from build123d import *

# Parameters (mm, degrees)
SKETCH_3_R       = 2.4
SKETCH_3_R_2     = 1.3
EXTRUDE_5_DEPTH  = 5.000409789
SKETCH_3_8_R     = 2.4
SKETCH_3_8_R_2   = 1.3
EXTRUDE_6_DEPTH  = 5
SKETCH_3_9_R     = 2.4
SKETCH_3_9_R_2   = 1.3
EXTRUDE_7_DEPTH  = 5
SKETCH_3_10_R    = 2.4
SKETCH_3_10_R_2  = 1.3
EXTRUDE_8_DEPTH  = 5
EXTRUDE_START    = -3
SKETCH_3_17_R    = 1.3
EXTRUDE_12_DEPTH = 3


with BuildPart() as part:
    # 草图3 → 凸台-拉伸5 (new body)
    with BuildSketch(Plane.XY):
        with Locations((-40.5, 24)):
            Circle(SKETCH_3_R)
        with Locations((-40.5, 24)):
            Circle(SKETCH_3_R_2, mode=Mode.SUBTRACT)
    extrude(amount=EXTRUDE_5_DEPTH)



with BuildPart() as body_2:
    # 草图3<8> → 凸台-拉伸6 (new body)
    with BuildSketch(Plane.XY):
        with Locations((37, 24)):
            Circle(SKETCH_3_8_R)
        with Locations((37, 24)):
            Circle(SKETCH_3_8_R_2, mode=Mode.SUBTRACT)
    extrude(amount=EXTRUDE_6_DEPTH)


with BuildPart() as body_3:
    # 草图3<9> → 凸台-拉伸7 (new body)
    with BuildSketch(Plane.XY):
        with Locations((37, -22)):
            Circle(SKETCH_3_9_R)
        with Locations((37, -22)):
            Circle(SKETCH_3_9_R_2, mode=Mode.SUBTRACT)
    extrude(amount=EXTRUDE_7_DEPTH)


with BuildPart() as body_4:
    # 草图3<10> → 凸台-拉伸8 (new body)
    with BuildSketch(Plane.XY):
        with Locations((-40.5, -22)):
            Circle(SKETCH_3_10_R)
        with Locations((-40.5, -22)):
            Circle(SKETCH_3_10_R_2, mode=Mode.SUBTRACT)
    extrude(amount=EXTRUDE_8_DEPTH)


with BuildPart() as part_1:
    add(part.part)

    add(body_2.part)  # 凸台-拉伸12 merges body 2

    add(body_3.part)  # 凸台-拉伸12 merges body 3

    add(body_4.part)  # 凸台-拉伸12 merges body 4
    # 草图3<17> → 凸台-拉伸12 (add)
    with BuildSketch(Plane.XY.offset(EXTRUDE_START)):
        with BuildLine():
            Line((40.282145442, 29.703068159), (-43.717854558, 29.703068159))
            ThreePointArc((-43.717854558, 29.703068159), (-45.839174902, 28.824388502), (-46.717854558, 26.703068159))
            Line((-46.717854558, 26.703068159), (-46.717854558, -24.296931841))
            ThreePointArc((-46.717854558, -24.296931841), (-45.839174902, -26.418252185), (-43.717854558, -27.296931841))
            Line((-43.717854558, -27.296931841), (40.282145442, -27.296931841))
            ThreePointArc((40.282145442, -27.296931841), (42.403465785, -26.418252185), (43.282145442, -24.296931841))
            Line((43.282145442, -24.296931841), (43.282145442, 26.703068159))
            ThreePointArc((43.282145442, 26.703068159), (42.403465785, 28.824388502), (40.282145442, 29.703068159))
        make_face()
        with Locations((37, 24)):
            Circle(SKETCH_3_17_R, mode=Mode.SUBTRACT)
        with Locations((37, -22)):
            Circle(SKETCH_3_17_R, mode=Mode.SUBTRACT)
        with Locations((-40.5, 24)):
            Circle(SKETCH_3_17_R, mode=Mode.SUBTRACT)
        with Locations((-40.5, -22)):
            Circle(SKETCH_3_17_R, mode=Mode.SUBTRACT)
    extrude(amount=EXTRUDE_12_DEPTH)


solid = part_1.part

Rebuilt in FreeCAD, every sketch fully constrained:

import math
import FreeCAD as App
import Part
import Sketcher

V = App.Vector

doc = App.newDocument("Part")
body = doc.addObject("PartDesign::Body", "Body")

sketch1 = doc.addObject("Sketcher::SketchObject", "Sketch")
body.addObject(sketch1)
sketch1.AttachmentSupport = (doc.XY_Plane, [""])
sketch1.MapMode = "FlatFace"
sketch1.addGeometry(Part.Circle(V(-40.5, 24, 0), V(0, 0, 1), 2.4), False)
sketch1.addGeometry(Part.Circle(V(-40.5, 24, 0), V(0, 0, 1), 1.3), False)
sketch1.addConstraint(Sketcher.Constraint("Coincident", 1, 3, 0, 3))
sketch1.addConstraint(Sketcher.Constraint("Diameter", 0, 4.8))
sketch1.addConstraint(Sketcher.Constraint("Diameter", 1, 2.6))
sketch1.addConstraint(Sketcher.Constraint("DistanceY", -1, 1, 0, 3, 24.0))
sketch1.addConstraint(Sketcher.Constraint("DistanceX", 0, 3, -1, 1, 40.5))
pad1 = doc.addObject("PartDesign::Pad", "Pad")
body.addObject(pad1)
pad1.Profile = sketch1
pad1.Length = 5.00041
body2 = doc.addObject("PartDesign::Body", "Body001")

sketch2 = doc.addObject("Sketcher::SketchObject", "Sketch001")
body2.addObject(sketch2)
sketch2.AttachmentSupport = (doc.getObject("XY_Plane001"), [""])
sketch2.MapMode = "FlatFace"
sketch2.addGeometry(Part.Circle(V(37, 24, 0), V(0, 0, 1), 2.4), False)
sketch2.addGeometry(Part.Circle(V(37, 24, 0), V(0, 0, 1), 1.3), False)
sketch2.addConstraint(Sketcher.Constraint("Coincident", 1, 3, 0, 3))
sketch2.addConstraint(Sketcher.Constraint("Diameter", 0, 4.8))
sketch2.addConstraint(Sketcher.Constraint("Diameter", 1, 2.6))
sketch2.addConstraint(Sketcher.Constraint("DistanceX", -1, 1, 0, 3, 37.0))
sketch2.addConstraint(Sketcher.Constraint("DistanceY", -1, 1, 0, 3, 24.0))
pad2 = doc.addObject("PartDesign::Pad", "Pad001")
body2.addObject(pad2)
pad2.Profile = sketch2
pad2.Length = 5
body3 = doc.addObject("PartDesign::Body", "Body002")

sketch3 = doc.addObject("Sketcher::SketchObject", "Sketch002")
body3.addObject(sketch3)
sketch3.AttachmentSupport = (doc.getObject("XY_Plane002"), [""])
sketch3.MapMode = "FlatFace"
sketch3.addGeometry(Part.Circle(V(37, -22, 0), V(0, 0, 1), 2.4), False)
sketch3.addGeometry(Part.Circle(V(37, -22, 0), V(0, 0, 1), 1.3), False)
sketch3.addConstraint(Sketcher.Constraint("Coincident", 1, 3, 0, 3))
sketch3.addConstraint(Sketcher.Constraint("Diameter", 0, 4.8))
sketch3.addConstraint(Sketcher.Constraint("Diameter", 1, 2.6))
sketch3.addConstraint(Sketcher.Constraint("DistanceX", -1, 1, 0, 3, 37.0))
sketch3.addConstraint(Sketcher.Constraint("DistanceY", 0, 3, -1, 1, 22.0))
pad3 = doc.addObject("PartDesign::Pad", "Pad002")
body3.addObject(pad3)
pad3.Profile = sketch3
pad3.Length = 5
body4 = doc.addObject("PartDesign::Body", "Body003")

sketch4 = doc.addObject("Sketcher::SketchObject", "Sketch003")
body4.addObject(sketch4)
sketch4.AttachmentSupport = (doc.getObject("XY_Plane003"), [""])
sketch4.MapMode = "FlatFace"
sketch4.addGeometry(Part.Circle(V(-40.5, -22, 0), V(0, 0, 1), 2.4), False)
sketch4.addGeometry(Part.Circle(V(-40.5, -22, 0), V(0, 0, 1), 1.3), False)
sketch4.addConstraint(Sketcher.Constraint("Coincident", 1, 3, 0, 3))
sketch4.addConstraint(Sketcher.Constraint("Diameter", 0, 4.8))
sketch4.addConstraint(Sketcher.Constraint("Diameter", 1, 2.6))
sketch4.addConstraint(Sketcher.Constraint("DistanceY", 0, 3, -1, 1, 22.0))
sketch4.addConstraint(Sketcher.Constraint("DistanceX", 0, 3, -1, 1, 40.5))
pad4 = doc.addObject("PartDesign::Pad", "Pad003")
body4.addObject(pad4)
pad4.Profile = sketch4
pad4.Length = 5
body.AllowCompound = True
doc.recompute()

boolean = doc.addObject("PartDesign::Boolean", "Boolean")
body.addObject(boolean)
boolean.Type = "Fuse"
boolean.addObjects([body2])
doc.recompute()

boolean2 = doc.addObject("PartDesign::Boolean", "Boolean001")
body.addObject(boolean2)
boolean2.Type = "Fuse"
boolean2.addObjects([body3])
doc.recompute()

boolean3 = doc.addObject("PartDesign::Boolean", "Boolean002")
body.addObject(boolean3)
boolean3.Type = "Fuse"
boolean3.addObjects([body4])

sketch5 = doc.addObject("Sketcher::SketchObject", "Sketch004")
body.addObject(sketch5)
sketch5.AttachmentSupport = (doc.XY_Plane, [""])
sketch5.MapMode = "FlatFace"
sketch5.AttachmentOffset = App.Placement(V(0, 0, -3), App.Rotation())
sketch5.addGeometry(Part.LineSegment(V(40.3, 29.7, 0), V(-43.7, 29.7, 0)), False)
sketch5.addGeometry(Part.ArcOfCircle(Part.Circle(V(-43.7, 26.7, 0), V(0, 0, 1), 3), math.radians(90), math.radians(180)), False)
sketch5.addGeometry(Part.LineSegment(V(-46.7, 26.7, 0), V(-46.7, -24.3, 0)), False)
sketch5.addGeometry(Part.ArcOfCircle(Part.Circle(V(-43.7, -24.3, 0), V(0, 0, 1), 3), math.radians(180), math.radians(270)), False)
sketch5.addGeometry(Part.LineSegment(V(-43.7, -27.3, 0), V(40.3, -27.3, 0)), False)
sketch5.addGeometry(Part.ArcOfCircle(Part.Circle(V(40.3, -24.3, 0), V(0, 0, 1), 3), math.radians(-90), math.radians(0)), False)
sketch5.addGeometry(Part.LineSegment(V(43.3, -24.3, 0), V(43.3, 26.7, 0)), False)
sketch5.addGeometry(Part.ArcOfCircle(Part.Circle(V(40.3, 26.7, 0), V(0, 0, 1), 3), math.radians(0), math.radians(90)), False)
sketch5.addGeometry(Part.Circle(V(-40.5, -22, 0), V(0, 0, 1), 1.3), False)
sketch5.addGeometry(Part.Circle(V(37, -22, 0), V(0, 0, 1), 1.3), False)
sketch5.addGeometry(Part.Circle(V(-40.5, 24, 0), V(0, 0, 1), 1.3), False)
sketch5.addGeometry(Part.Circle(V(37, 24, 0), V(0, 0, 1), 1.3), False)
sketch5.addConstraint(Sketcher.Constraint("Tangent", 0, 2, 1, 1))
sketch5.addConstraint(Sketcher.Constraint("Tangent", 1, 2, 2, 1))
sketch5.addConstraint(Sketcher.Constraint("Tangent", 2, 2, 3, 1))
sketch5.addConstraint(Sketcher.Constraint("Tangent", 3, 2, 4, 1))
sketch5.addConstraint(Sketcher.Constraint("Tangent", 4, 2, 5, 1))
sketch5.addConstraint(Sketcher.Constraint("Tangent", 5, 2, 6, 1))
sketch5.addConstraint(Sketcher.Constraint("Tangent", 6, 2, 7, 1))
sketch5.addConstraint(Sketcher.Constraint("Tangent", 7, 2, 0, 1))
sketch5.addConstraint(Sketcher.Constraint("Horizontal", 0))
sketch5.addConstraint(Sketcher.Constraint("Vertical", 2))
sketch5.addConstraint(Sketcher.Constraint("Horizontal", 4))
sketch5.addConstraint(Sketcher.Constraint("Vertical", 6))
sketch5.addConstraint(Sketcher.Constraint("Equal", 1, 3))
sketch5.addConstraint(Sketcher.Constraint("Equal", 3, 5))
sketch5.addConstraint(Sketcher.Constraint("Equal", 5, 7))
sketch5.addConstraint(Sketcher.Constraint("Equal", 8, 9))
sketch5.addConstraint(Sketcher.Constraint("Equal", 9, 10))
sketch5.addConstraint(Sketcher.Constraint("Equal", 10, 11))
sketch5.addConstraint(Sketcher.Constraint("Horizontal", 8, 3, 9, 3))
sketch5.addConstraint(Sketcher.Constraint("Horizontal", 10, 3, 11, 3))
sketch5.addConstraint(Sketcher.Constraint("Vertical", 8, 3, 10, 3))
sketch5.addConstraint(Sketcher.Constraint("Vertical", 9, 3, 11, 3))
sketch5.addConstraint(Sketcher.Constraint("Radius", 1, 3.0))
sketch5.addConstraint(Sketcher.Constraint("Diameter", 8, 2.6))
sketch5.addConstraint(Sketcher.Constraint("DistanceX", 0, 2, 0, 1, 84.0))
sketch5.addConstraint(Sketcher.Constraint("DistanceY", 2, 2, 2, 1, 51.0))
sketch5.addConstraint(Sketcher.Constraint("DistanceY", 8, 3, -1, 1, 22.0))
sketch5.addConstraint(Sketcher.Constraint("DistanceX", -1, 1, 9, 3, 37.0))
sketch5.addConstraint(Sketcher.Constraint("DistanceY", -1, 1, 10, 3, 24.0))
sketch5.addConstraint(Sketcher.Constraint("DistanceX", 8, 3, -1, 1, 40.5))
sketch5.addConstraint(Sketcher.Constraint("DistanceY", -1, 1, 1, 3, 26.703068))
sketch5.addConstraint(Sketcher.Constraint("DistanceX", 1, 3, -1, 1, 43.717855))
pad5 = doc.addObject("PartDesign::Pad", "Pad004")
body.addObject(pad5)
pad5.Profile = sketch5
pad5.Length = 3

doc.recompute()
